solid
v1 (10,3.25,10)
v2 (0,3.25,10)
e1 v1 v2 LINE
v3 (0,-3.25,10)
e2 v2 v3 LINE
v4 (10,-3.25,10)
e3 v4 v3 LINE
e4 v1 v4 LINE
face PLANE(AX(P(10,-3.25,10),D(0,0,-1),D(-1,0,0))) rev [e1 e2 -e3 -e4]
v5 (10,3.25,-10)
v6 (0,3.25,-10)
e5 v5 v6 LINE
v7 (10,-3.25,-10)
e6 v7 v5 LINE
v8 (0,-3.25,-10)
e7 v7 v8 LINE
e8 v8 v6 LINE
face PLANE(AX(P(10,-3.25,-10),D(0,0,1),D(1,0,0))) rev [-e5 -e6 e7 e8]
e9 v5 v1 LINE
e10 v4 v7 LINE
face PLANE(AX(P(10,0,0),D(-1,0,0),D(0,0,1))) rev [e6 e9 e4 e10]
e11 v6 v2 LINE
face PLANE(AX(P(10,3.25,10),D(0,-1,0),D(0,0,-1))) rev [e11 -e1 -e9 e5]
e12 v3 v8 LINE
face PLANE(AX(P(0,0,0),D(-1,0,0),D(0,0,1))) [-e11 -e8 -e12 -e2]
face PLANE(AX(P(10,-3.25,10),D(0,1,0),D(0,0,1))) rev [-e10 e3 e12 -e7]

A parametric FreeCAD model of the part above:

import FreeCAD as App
import Part
import Sketcher
Q = App.Units.Quantity


def add_polygon(sketch, points):
    """Adds a closed chain of lines whose ends are joined by coincident constraints."""
    first, n = sketch.GeometryCount, len(points)
    for a, b in zip(points, points[1:] + points[:1]):
        sketch.addGeometry(Part.LineSegment(App.Vector(*a, 0), App.Vector(*b, 0)), False)
    for i in range(n):
        sketch.addConstraint(Sketcher.Constraint("Coincident", first + i, 2, first + (i + 1) % n, 1))

doc = App.newDocument("Part")
body = doc.addObject("PartDesign::Body", "Body")

# Sketch on YZ plane
sketch1 = body.newObject("Sketcher::SketchObject", "Sketch")
sketch1.AttachmentSupport = (doc.getObject("YZ_Plane"), [""])
sketch1.MapMode = "FlatFace"
add_polygon(sketch1, [(3.25, 10), (-3.25, 10), (-3.25, -10), (3.25, -10)])  # lines 0-3
sketch1.addConstraint(Sketcher.Constraint("Horizontal", 0))
sketch1.addConstraint(Sketcher.Constraint("Vertical", 1))
sketch1.addConstraint(Sketcher.Constraint("Horizontal", 2))
sketch1.addConstraint(Sketcher.Constraint("Vertical", 3))
sketch1.addConstraint(Sketcher.Constraint("Symmetric", 0, 2, 2, 2, -1, 1))
sketch1.addConstraint(Sketcher.Constraint("DistanceY", 1, 2, 1, 1, Q("20 mm")))
sketch1.addConstraint(Sketcher.Constraint("DistanceX", 0, 2, 0, 1, Q("6.5 mm")))
pad1 = body.newObject("PartDesign::Pad", "Pad")
pad1.Profile = sketch1
pad1.Length = 10

doc.recompute()
